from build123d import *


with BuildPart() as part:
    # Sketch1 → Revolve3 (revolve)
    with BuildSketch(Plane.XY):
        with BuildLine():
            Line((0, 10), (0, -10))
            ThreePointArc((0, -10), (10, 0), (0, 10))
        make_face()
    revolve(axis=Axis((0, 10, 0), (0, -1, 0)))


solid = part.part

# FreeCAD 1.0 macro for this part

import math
import FreeCAD as App
import Part
import Sketcher

doc = App.newDocument("Part")
body = doc.addObject("PartDesign::Body", "Body")

# Sketch on XY plane
sketch1 = doc.addObject("Sketcher::SketchObject", "Sketch")
body.addObject(sketch1)
sketch1.AttachmentSupport = (doc.XY_Plane, [""])
sketch1.MapMode = "FlatFace"
sketch1.addGeometry(Part.LineSegment(App.Vector(0, 10, 0), App.Vector(0, -10, 0)), False)
sketch1.addGeometry(Part.ArcOfCircle(Part.Circle(App.Vector(0, 0, 0), App.Vector(0, 0, 1), 10), math.radians(-90), math.radians(90)), False)
sketch1.addConstraint(Sketcher.Constraint("Coincident", 0, 1, 1, 2))
sketch1.addConstraint(Sketcher.Constraint("Coincident", 1, 1, 0, 2))
sketch1.addConstraint(Sketcher.Constraint("Vertical", 0))
sketch1.addConstraint(Sketcher.Constraint("Coincident", 1, 3, -1, 1))
sketch1.addConstraint(Sketcher.Constraint("PointOnObject", 0, 1, -2))
sketch1.addConstraint(Sketcher.Constraint("Radius", 1, 10.0))
revolution = doc.addObject("PartDesign::Revolution", "Revolution")
body.addObject(revolution)
revolution.Profile = sketch1
revolution.ReferenceAxis = (sketch1, ["V_Axis"])
revolution.Angle = 360

doc.recompute()
